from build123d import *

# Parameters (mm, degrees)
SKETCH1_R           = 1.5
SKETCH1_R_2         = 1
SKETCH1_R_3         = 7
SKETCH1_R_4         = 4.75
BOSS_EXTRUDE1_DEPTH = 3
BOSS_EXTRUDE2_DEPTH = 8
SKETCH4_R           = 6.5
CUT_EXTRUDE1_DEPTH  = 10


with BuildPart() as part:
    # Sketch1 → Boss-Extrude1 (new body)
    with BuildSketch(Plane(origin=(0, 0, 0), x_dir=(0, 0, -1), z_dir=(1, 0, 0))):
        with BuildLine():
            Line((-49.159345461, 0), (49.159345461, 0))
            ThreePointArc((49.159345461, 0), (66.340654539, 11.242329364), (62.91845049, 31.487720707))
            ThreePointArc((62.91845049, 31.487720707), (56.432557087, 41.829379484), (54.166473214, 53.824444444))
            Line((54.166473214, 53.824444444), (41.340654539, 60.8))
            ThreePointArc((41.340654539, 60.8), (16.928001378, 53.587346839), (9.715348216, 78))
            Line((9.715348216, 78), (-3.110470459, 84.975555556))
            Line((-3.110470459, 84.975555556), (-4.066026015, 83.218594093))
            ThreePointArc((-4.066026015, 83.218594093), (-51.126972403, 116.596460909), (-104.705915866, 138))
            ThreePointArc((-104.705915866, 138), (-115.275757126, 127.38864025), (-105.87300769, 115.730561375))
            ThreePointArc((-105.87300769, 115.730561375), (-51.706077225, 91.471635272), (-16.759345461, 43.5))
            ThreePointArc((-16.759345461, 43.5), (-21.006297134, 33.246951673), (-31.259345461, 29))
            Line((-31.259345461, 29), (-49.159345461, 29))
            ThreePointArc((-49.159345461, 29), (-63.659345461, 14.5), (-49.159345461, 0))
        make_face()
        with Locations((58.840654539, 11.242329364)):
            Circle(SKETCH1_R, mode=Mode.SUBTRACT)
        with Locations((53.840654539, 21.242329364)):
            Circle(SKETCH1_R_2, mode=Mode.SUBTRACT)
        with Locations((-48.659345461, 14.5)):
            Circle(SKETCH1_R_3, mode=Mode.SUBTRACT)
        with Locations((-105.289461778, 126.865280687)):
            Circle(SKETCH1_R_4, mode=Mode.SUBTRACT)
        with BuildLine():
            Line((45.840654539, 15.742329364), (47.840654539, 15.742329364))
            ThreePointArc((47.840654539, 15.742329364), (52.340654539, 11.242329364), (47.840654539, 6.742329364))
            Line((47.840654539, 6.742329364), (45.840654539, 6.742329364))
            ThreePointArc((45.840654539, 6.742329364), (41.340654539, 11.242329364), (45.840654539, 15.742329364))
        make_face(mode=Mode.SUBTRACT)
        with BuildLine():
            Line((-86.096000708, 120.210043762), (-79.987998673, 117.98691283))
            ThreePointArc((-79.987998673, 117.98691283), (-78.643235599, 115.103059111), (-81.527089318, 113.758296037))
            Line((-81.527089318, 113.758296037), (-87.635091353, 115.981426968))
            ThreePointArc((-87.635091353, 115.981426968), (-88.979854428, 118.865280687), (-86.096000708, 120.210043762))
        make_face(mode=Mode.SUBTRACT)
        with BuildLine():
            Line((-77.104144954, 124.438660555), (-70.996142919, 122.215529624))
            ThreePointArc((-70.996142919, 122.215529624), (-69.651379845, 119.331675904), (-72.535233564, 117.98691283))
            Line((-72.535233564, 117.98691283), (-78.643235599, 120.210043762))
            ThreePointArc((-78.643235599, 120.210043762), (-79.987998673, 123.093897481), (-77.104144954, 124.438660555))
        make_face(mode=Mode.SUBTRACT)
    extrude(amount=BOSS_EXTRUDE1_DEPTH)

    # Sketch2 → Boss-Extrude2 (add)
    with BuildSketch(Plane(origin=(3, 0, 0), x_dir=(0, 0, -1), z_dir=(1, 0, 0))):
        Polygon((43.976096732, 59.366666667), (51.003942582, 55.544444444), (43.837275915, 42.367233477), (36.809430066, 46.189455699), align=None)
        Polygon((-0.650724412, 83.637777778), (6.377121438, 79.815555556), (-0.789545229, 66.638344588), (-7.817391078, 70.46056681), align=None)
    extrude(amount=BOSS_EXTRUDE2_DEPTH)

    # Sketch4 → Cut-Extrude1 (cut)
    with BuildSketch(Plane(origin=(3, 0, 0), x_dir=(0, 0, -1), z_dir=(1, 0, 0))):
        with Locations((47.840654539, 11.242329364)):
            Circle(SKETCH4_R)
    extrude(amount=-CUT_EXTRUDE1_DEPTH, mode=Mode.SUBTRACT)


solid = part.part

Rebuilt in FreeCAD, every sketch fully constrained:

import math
import FreeCAD as App
import Part
import Sketcher

V = App.Vector
Q = App.Units.Quantity


def add_polygon(sketch, points):
    """Adds a closed chain of lines whose ends are joined by coincident constraints."""
    first, n = sketch.GeometryCount, len(points)
    for a, b in zip(points, points[1:] + points[:1]):
        sketch.addGeometry(Part.LineSegment(App.Vector(*a, 0), App.Vector(*b, 0)), False)
    for i in range(n):
        sketch.addConstraint(Sketcher.Constraint("Coincident", first + i, 2, first + (i + 1) % n, 1))

doc = App.newDocument("Part")
params = doc.addObject("Spreadsheet::Sheet", "Params")
for row, (alias, value) in enumerate([
    ("sketch1_diameter", "14 mm"),
    ("sketch1_diameter2", "3 mm"),
    ("sketch1_diameter3", "2 mm"),
    ("sketch1_radius", "18 mm"),
    ("sketch1_diameter4", "9.5 mm"),
    ("pad1_length", "3 mm"),
    ("sketch2_length", "8 mm"),
    ("sketch2_length2", "15 mm"),
    ("pad2_length", "8 mm"),
    ("sketch3_diameter", "13 mm"),
    ("pocket1_length", "10 mm"),
], start=1):
    params.set(f"A{row}", alias)
    params.set(f"B{row}", "=" + value)
    params.setAlias(f"B{row}", alias)

body = doc.addObject("PartDesign::Body", "Body")

sketch1 = body.newObject("Sketcher::SketchObject", "Sketch")
sketch1.AttachmentSupport = (doc.getObject("YZ_Plane"), [""])
sketch1.MapMode = "FlatFace"
sketch1.addGeometry([
    Part.LineSegment(V(0, 49.159345, 0), V(0, -49.159345, 0)),
    Part.ArcOfCircle(Part.Circle(V(18.75, -49.159345, 0), V(0, 0, 1), 18.75), math.radians(180), math.radians(312.792488)),
    Part.ArcOfCircle(Part.Circle(V(53.824444, -87.046262, 0), V(0, 0, 1), 32.879789), math.radians(90), math.radians(132.792488)),
    Part.LineSegment(V(53.824444, -54.166473, 0), V(60.8, -41.340655, 0)),
    Part.ArcOfCircle(Part.Circle(V(69.4, -25.528001, 0), V(0, 0, 1), 18), math.radians(61.459635), math.radians(241.459635)),
    Part.LineSegment(V(78, -9.715348, 0), V(84.975556, 3.11047, 0)),
    Part.LineSegment(V(84.975556, 3.11047, 0), V(83.218594, 4.066026, 0)),
    Part.ArcOfCircle(Part.Circle(V(-97.857582, 167.860943, 0), V(0, 0, 1), 244.166657), math.radians(-42.131346), math.radians(-14.990294)),
    Part.ArcOfCircle(Part.Circle(V(126.801634, 104.075003, 0), V(0, 0, 1), 11.216125), math.radians(3.224617), math.radians(170.775383)),
    Part.ArcOfCircle(Part.Circle(V(1.81995, 124.37273, 0), V(0, 0, 1), 115.403064), math.radians(-68.827973), math.radians(-9.224617)),
    Part.ArcOfCircle(Part.Circle(V(43.5, 31.259345, 0), V(0, 0, 1), 14.5), math.radians(-180), math.radians(-90)),
    Part.LineSegment(V(29, 31.259345, 0), V(29, 49.159345, 0)),
    Part.ArcOfCircle(Part.Circle(V(14.5, 49.159345, 0), V(0, 0, 1), 14.5), math.radians(0), math.radians(180)),
    Part.Circle(V(14.5, 48.659345, 0), V(0, 0, 1), 7),
    Part.ArcOfCircle(Part.Circle(V(11.242329, -45.840655, 0), V(0, 0, 1), 4.5), math.radians(0), math.radians(180)),
    Part.LineSegment(V(15.742329, -45.840655, 0), V(15.742329, -47.840655, 0)),
    Part.ArcOfCircle(Part.Circle(V(11.242329, -47.840655, 0), V(0, 0, 1), 4.5), math.radians(180), math.radians(360)),
    Part.LineSegment(V(6.742329, -47.840655, 0), V(6.742329, -45.840655, 0)),
    Part.Circle(V(11.242329, -58.840655, 0), V(0, 0, 1), 1.5),
    Part.Circle(V(21.242329, -53.840655, 0), V(0, 0, 1), 1),
    Part.Circle(V(126.865281, 105.289462, 0), V(0, 0, 1), 4.75),
    Part.ArcOfCircle(Part.Circle(V(118.095735, 86.865546, 0), V(0, 0, 1), 2.25), math.radians(-20), math.radians(160)),
    Part.LineSegment(V(120.210044, 86.096001, 0), V(117.986913, 79.987999, 0)),
    Part.ArcOfCircle(Part.Circle(V(115.872604, 80.757544, 0), V(0, 0, 1), 2.25), math.radians(160), math.radians(340)),
    Part.LineSegment(V(113.758296, 81.527089, 0), V(115.981427, 87.635091, 0)),
    Part.ArcOfCircle(Part.Circle(V(122.324352, 77.87369, 0), V(0, 0, 1), 2.25), math.radians(-20), math.radians(160)),
    Part.LineSegment(V(124.438661, 77.104145, 0), V(122.21553, 70.996143, 0)),
    Part.ArcOfCircle(Part.Circle(V(120.101221, 71.765688, 0), V(0, 0, 1), 2.25), math.radians(160), math.radians(340)),
    Part.LineSegment(V(117.986913, 72.535234, 0), V(120.210044, 78.643236, 0)),
], False)
sketch1.addConstraint([
    Sketcher.Constraint("Tangent", 0, 2, 1, 1),
    Sketcher.Constraint("Tangent", 1, 2, 2, 2),
    Sketcher.Constraint("Coincident", 2, 1, 3, 1),
    Sketcher.Constraint("Coincident", 3, 2, 4, 2),
    Sketcher.Constraint("Coincident", 4, 1, 5, 1),
    Sketcher.Constraint("Coincident", 5, 2, 6, 1),
    Sketcher.Constraint("Coincident", 6, 2, 7, 1),
    Sketcher.Constraint("Coincident", 7, 2, 8, 1),
    Sketcher.Constraint("Tangent", 8, 2, 9, 2),
    Sketcher.Constraint("Coincident", 9, 1, 10, 2),
    Sketcher.Constraint("Tangent", 10, 1, 11, 1),
    Sketcher.Constraint("Tangent", 11, 2, 12, 1),
    Sketcher.Constraint("Tangent", 12, 2, 0, 1),
    Sketcher.Constraint("Tangent", 14, 1, 15, 1),
    Sketcher.Constraint("Tangent", 15, 2, 16, 2),
    Sketcher.Constraint("Tangent", 16, 1, 17, 1),
    Sketcher.Constraint("Tangent", 17, 2, 14, 2),
    Sketcher.Constraint("Tangent", 21, 1, 22, 1),
    Sketcher.Constraint("Tangent", 22, 2, 23, 2),
    Sketcher.Constraint("Tangent", 23, 1, 24, 1),
    Sketcher.Constraint("Tangent", 24, 2, 21, 2),
    Sketcher.Constraint("Tangent", 25, 1, 26, 1),
    Sketcher.Constraint("Tangent", 26, 2, 27, 2),
    Sketcher.Constraint("Tangent", 27, 1, 28, 1),
    Sketcher.Constraint("Tangent", 28, 2, 25, 2),
    Sketcher.Constraint("Vertical", 0),
    Sketcher.Constraint("Vertical", 11),
    Sketcher.Constraint("Vertical", 15),
    Sketcher.Constraint("Vertical", 17),
    Sketcher.Constraint("Equal", 10, 12),
    Sketcher.Constraint("Equal", 21, 23),
    Sketcher.Constraint("Equal", 23, 25),
    Sketcher.Constraint("Equal", 25, 27),
    Sketcher.Constraint("Symmetric", 0, 2, 12, 2, -1, 1),
    Sketcher.Constraint("Parallel", 3, 5),
    Sketcher.Constraint("Perpendicular", 5, 6),
    Sketcher.Constraint("Parallel", 24, 26),
    Sketcher.Constraint("Vertical", 12, 3, 13, 3),
    Sketcher.Constraint("Vertical", 16, 3, 18, 3),
    Sketcher.Constraint("Vertical", 10, 3, 9, 1),
    Sketcher.Constraint("Vertical", 22, 2, 27, 1),
    Sketcher.Constraint("Vertical", 21, 1, 28, 2),
    Sketcher.Constraint("Equal", 3, 5),
    Sketcher.Constraint("Diameter", 13, 14.0),
    Sketcher.Constraint("Diameter", 18, 3.0),
    Sketcher.Constraint("Diameter", 19, 2.0),
    Sketcher.Constraint("Radius", 4, 18.0),
    Sketcher.Constraint("Diameter", 20, 9.5),
    Sketcher.Constraint("Radius", 10, 14.5),
    Sketcher.Constraint("Radius", 14, 4.5),
    Sketcher.Constraint("DistanceY", 15, 2, 15, 1, 2.0),
    Sketcher.Constraint("Angle", 22, Q("-110 deg")),
    Sketcher.Constraint("Radius", 1, 18.75),
    Sketcher.Constraint("Radius", 21, 2.25),
    Sketcher.Constraint("Distance", 6, 2.0),
    Sketcher.Constraint("DistanceY", 11, 1, 11, 2, 17.9),
    Sketcher.Constraint("DistanceX", -1, 1, 4, 1, 78.0),
    Sketcher.Constraint("DistanceX", -1, 1, 7, 2, 138.0),
    Sketcher.Constraint("DistanceY", 18, 3, 16, 3, 11.0),
    Sketcher.Constraint("DistanceX", 18, 3, 19, 3, 10.0),
    Sketcher.Constraint("DistanceY", 18, 3, 19, 3, 5.0),
    Sketcher.Constraint("Distance", 3, 14.6),
    Sketcher.Constraint("Distance", 22, 6.5),
    Sketcher.Constraint("DistanceX", -1, 1, 4, 3, 69.4),
    Sketcher.Constraint("DistanceX", -1, 1, 3, 2, 60.8),
    Sketcher.Constraint("DistanceY", 13, 3, 12, 3, 0.5),
    Sketcher.Constraint("DistanceY", 14, 3, 10, 3, 77.1),
    Sketcher.Constraint("DistanceY", 19, 3, 3, 2, 12.5),
    Sketcher.Constraint("Radius", 2, 32.879789),
    Sketcher.Constraint("DistanceY", 4, 3, -1, 1, 25.528001),
    Sketcher.Constraint("DistanceY", -1, 1, 21, 1, 86.096001),
    Sketcher.Constraint("Radius", 7, 244.166657),
    Sketcher.Constraint("Radius", 8, 11.216125),
    Sketcher.Constraint("Radius", 9, 115.403064),
    Sketcher.Constraint("DistanceX", 21, 3, 8, 3, 8.705898),
    Sketcher.Constraint("DistanceY", 25, 3, 23, 1, 3.653399),
    Sketcher.Constraint("DistanceX", 7, 3, -1, 1, 97.857582),
    Sketcher.Constraint("DistanceX", -1, 1, 9, 3, 1.81995),
    Sketcher.Constraint("DistanceX", -1, 1, 14, 3, 11.242329),
    Sketcher.Constraint("DistanceX", -1, 1, 20, 3, 126.865281),
    Sketcher.Constraint("DistanceY", -1, 1, 20, 3, 105.289462),
    Sketcher.Constraint("DistanceX", -1, 1, 27, 3, 120.101221),
])
sketch1.setExpression("Constraints[43]", "Params.sketch1_diameter")
sketch1.setExpression("Constraints[44]", "Params.sketch1_diameter2")
sketch1.setExpression("Constraints[45]", "Params.sketch1_diameter3")
sketch1.setExpression("Constraints[46]", "Params.sketch1_radius")
sketch1.setExpression("Constraints[47]", "Params.sketch1_diameter4")
pad1 = body.newObject("PartDesign::Pad", "Pad")
pad1.Profile = sketch1
pad1.setExpression("Length", "Params.pad1_length")

sketch2 = body.newObject("Sketcher::SketchObject", "Sketch001")
sketch2.AttachmentSupport = (doc.getObject("YZ_Plane"), [""])
sketch2.MapMode = "FlatFace"
sketch2.AttachmentOffset = App.Placement(V(0, 0, 3), App.Rotation())
add_polygon(sketch2, [(55.544444, -51.003943), (59.366667, -43.976097), (46.189456, -36.80943), (42.367233, -43.837276)])
add_polygon(sketch2, [(79.815556, -6.377121), (83.637778, 0.650724), (70.460567, 7.817391), (66.638345, 0.789545)])
sketch2.addConstraint([
    Sketcher.Constraint("Perpendicular", 0, 1),
    Sketcher.Constraint("Perpendicular", 1, 2),
    Sketcher.Constraint("Perpendicular", 2, 3),
    Sketcher.Constraint("Perpendicular", 3, 4),
    Sketcher.Constraint("Perpendicular", 4, 5),
    Sketcher.Constraint("Perpendicular", 5, 6),
    Sketcher.Constraint("Perpendicular", 6, 7),
    Sketcher.Constraint("Equal", 2, 4),
    Sketcher.Constraint("Equal", 3, 5),
    Sketcher.Constraint("Distance", 0, 8.0),
    Sketcher.Constraint("Distance", 1, 15.0),
    Sketcher.Constraint("DistanceY", 2, 2, 4, 2, 44.488),
    Sketcher.Constraint("DistanceX", 0, 2, 5, 2, 11.0939),
    Sketcher.Constraint("DistanceX", 1, 2, 7, 2, 33.6261),
    Sketcher.Constraint("DistanceY", 1, 2, -1, 1, 36.80943),
    Sketcher.Constraint("DistanceX", -1, 1, 0, 2, 59.366667),
])
sketch2.setExpression("Constraints[17]", "Params.sketch2_length")
sketch2.setExpression("Constraints[18]", "Params.sketch2_length2")
pad2 = body.newObject("PartDesign::Pad", "Pad001")
pad2.Profile = sketch2
pad2.setExpression("Length", "Params.pad2_length")

sketch3 = body.newObject("Sketcher::SketchObject", "Sketch002")
sketch3.AttachmentSupport = (doc.getObject("YZ_Plane"), [""])
sketch3.MapMode = "FlatFace"
sketch3.AttachmentOffset = App.Placement(V(0, 0, 3), App.Rotation())
sketch3.addGeometry(Part.Circle(V(11.242329, -47.840655, 0), V(0, 0, 1), 6.5), False)
sketch3.addConstraint([
    Sketcher.Constraint("Diameter", 0, 13.0),
    Sketcher.Constraint("DistanceX", -1, 1, 0, 3, 11.242329),
    Sketcher.Constraint("DistanceY", 0, 3, -1, 1, 47.840655),
])
sketch3.setExpression("Constraints[0]", "Params.sketch3_diameter")
pocket1 = body.newObject("PartDesign::Pocket", "Pocket")
pocket1.Profile = sketch3
pocket1.setExpression("Length", "Params.pocket1_length")

doc.recompute()
